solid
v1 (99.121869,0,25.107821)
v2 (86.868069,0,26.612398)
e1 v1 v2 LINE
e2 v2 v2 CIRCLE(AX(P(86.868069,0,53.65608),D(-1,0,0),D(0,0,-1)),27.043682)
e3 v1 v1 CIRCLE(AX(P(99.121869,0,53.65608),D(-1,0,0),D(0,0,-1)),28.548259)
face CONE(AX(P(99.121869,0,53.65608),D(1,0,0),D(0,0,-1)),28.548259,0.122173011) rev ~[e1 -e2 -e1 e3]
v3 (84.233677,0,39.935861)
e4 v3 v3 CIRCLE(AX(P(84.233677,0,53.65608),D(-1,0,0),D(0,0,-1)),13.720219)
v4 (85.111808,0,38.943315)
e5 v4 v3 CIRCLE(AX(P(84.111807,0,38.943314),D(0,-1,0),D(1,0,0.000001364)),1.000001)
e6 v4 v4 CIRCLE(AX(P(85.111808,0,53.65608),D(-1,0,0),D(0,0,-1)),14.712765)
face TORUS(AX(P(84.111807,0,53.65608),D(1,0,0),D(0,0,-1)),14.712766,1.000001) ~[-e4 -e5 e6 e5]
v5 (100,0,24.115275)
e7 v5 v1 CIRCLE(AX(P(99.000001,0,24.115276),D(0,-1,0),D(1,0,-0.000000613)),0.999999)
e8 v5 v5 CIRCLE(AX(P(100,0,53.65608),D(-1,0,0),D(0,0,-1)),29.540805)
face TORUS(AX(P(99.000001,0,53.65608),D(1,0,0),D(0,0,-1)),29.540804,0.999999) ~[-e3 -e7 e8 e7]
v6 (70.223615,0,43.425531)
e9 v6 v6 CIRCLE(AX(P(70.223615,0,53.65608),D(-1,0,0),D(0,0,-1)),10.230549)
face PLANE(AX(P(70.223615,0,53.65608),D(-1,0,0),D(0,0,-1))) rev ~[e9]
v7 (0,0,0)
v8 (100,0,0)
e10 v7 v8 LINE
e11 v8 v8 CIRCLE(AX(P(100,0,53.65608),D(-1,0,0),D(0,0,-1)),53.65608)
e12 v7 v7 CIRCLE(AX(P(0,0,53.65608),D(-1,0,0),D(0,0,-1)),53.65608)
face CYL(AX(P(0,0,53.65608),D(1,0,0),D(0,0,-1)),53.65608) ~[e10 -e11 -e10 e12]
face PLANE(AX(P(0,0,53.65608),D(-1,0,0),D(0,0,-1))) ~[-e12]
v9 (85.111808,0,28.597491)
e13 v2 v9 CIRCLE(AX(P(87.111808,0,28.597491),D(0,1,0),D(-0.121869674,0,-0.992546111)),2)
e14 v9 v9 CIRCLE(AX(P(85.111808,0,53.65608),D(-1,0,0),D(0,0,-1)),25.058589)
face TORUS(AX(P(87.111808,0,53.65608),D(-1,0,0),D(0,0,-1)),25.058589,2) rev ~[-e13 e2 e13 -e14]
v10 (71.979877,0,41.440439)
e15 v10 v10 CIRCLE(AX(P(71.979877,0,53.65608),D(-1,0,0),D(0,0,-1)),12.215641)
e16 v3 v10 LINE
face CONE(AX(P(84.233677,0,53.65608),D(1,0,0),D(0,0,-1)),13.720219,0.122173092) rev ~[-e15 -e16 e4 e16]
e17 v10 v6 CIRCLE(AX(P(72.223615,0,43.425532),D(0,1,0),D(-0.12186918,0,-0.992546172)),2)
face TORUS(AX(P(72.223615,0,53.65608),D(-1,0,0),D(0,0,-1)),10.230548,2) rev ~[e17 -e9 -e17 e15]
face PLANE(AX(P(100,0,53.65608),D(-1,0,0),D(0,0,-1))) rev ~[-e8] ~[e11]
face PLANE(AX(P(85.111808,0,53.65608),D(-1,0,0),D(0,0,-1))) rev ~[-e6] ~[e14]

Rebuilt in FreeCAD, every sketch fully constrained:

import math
import FreeCAD as App
import Part
import Sketcher

V = App.Vector
Q = App.Units.Quantity

doc = App.newDocument("Part")
body = doc.addObject("PartDesign::Body", "Body")

# Sketch on XZ plane
sketch1 = doc.addObject("Sketcher::SketchObject", "Sketch")
body.addObject(sketch1)
sketch1.AttachmentSupport = (doc.XZ_Plane, [""])
sketch1.MapMode = "FlatFace"
sketch1.addGeometry([
    Part.LineSegment(V(0, 53.7, 0), V(0, 0, 0)),  # 0
    Part.LineSegment(V(0, 0, 0), V(100, 0, 0)),  # 1
    Part.LineSegment(V(100, 0, 0), V(100, 24.1, 0)),  # 2
    Part.ArcOfCircle(Part.Circle(V(99, 24.1, 0), V(0, 0, 1), 1), math.radians(0), math.radians(83)),  # 3
    Part.LineSegment(V(99.1, 25.1, 0), V(86.9, 26.6, 0)),  # 4
    Part.ArcOfCircle(Part.Circle(V(87.1, 28.6, 0), V(0, 0, 1), 2), math.radians(180), math.radians(263)),  # 5
    Part.LineSegment(V(85.1, 28.6, 0), V(85.1, 38.9, 0)),  # 6
    Part.ArcOfCircle(Part.Circle(V(84.1, 38.9, 0), V(0, 0, 1), 1), math.radians(0), math.radians(83)),  # 7
    Part.LineSegment(V(84.2, 39.9, 0), V(72, 41.4, 0)),  # 8
    Part.ArcOfCircle(Part.Circle(V(72.2, 43.4, 0), V(0, 0, 1), 2), math.radians(-180), math.radians(-97)),  # 9
    Part.LineSegment(V(70.2, 43.4, 0), V(70.2, 53.7, 0)),  # 10
    Part.LineSegment(V(70.2, 53.7, 0), V(0, 53.7, 0)),  # 11
], False)
sketch1.addGeometry(Part.LineSegment(V(100, 53.7, 0), V(0, 53.7, 0)), True)  # axis
sketch1.addConstraint([
    Sketcher.Constraint("Coincident", 0, 2, 1, 1),
    Sketcher.Constraint("Coincident", 1, 2, 2, 1),
    Sketcher.Constraint("Tangent", 2, 2, 3, 1),
    Sketcher.Constraint("Tangent", 3, 2, 4, 1),
    Sketcher.Constraint("Tangent", 4, 2, 5, 2),
    Sketcher.Constraint("Tangent", 5, 1, 6, 1),
    Sketcher.Constraint("Tangent", 6, 2, 7, 1),
    Sketcher.Constraint("Tangent", 7, 2, 8, 1),
    Sketcher.Constraint("Tangent", 8, 2, 9, 2),
    Sketcher.Constraint("Tangent", 9, 1, 10, 1),
    Sketcher.Constraint("Coincident", 10, 2, 11, 1),
    Sketcher.Constraint("Coincident", 11, 2, 0, 1),
    Sketcher.Constraint("Vertical", 0),
    Sketcher.Constraint("Horizontal", 1),
    Sketcher.Constraint("Vertical", 2),
    Sketcher.Constraint("Vertical", 6),
    Sketcher.Constraint("Vertical", 10),
    Sketcher.Constraint("Horizontal", 11),
    Sketcher.Constraint("Horizontal", 12),
    Sketcher.Constraint("Coincident", 0, 2, -1, 1),
    Sketcher.Constraint("Coincident", 12, 2, 11, 2),
    Sketcher.Constraint("Equal", 5, 9),
    Sketcher.Constraint("Parallel", 4, 8),
    Sketcher.Constraint("Vertical", 2, 2, 12, 1),
    Sketcher.Constraint("Equal", 4, 8),
    Sketcher.Constraint("Radius", 3, 0.999999),
    Sketcher.Constraint("Radius", 5, 2.0),
    Sketcher.Constraint("Radius", 7, 1.000001),
    Sketcher.Constraint("DistanceX", 1, 1, 1, 2, 100.0),
    Sketcher.Constraint("Angle", 4, Q("173.000002 deg")),
    Sketcher.Constraint("DistanceY", 0, 2, 0, 1, 53.65608),
    Sketcher.Constraint("DistanceY", 10, 1, 10, 2, 10.230549),
    Sketcher.Constraint("DistanceX", 4, 2, 3, 2, 12.2538),
    Sketcher.Constraint("DistanceY", 2, 1, 2, 2, 24.115275),
])
revolution = doc.addObject("PartDesign::Revolution", "Revolution")
body.addObject(revolution)
revolution.Profile = sketch1
revolution.ReferenceAxis = (sketch1, ["Axis0"])
revolution.Angle = 360

doc.recompute()
